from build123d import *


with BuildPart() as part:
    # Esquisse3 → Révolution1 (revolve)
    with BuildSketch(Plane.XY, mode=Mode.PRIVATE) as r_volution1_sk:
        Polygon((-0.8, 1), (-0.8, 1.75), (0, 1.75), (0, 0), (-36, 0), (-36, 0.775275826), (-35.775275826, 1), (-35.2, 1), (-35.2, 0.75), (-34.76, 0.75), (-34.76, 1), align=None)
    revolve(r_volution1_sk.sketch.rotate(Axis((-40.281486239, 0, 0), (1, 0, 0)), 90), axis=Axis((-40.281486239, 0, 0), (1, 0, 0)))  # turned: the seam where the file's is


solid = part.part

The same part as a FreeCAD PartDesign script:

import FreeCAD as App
import Part
import Sketcher
from FreeCAD import Vector
Q = App.Units.Quantity

doc = App.newDocument("Part")
params = doc.addObject("Spreadsheet::Sheet", "Params")
for row, (alias, value) in enumerate([
    ("sketch1_width", "36 mm"),
    ("sketch1_width2", "0.8 mm"),
    ("sketch1_width3", "33.96 mm"),
    ("sketch1_width4", "0.44 mm"),
    ("sketch1_height", "0.75 mm"),
    ("revolution_angle", "360 deg"),
], start=1):
    params.set(f"A{row}", alias)
    params.set(f"B{row}", "=" + value)
    params.setAlias(f"B{row}", alias)

body = doc.addObject("PartDesign::Body", "Body")

# Sketch on XY plane
sketch1 = body.newObject("Sketcher::SketchObject", "Sketch")
sketch1.AttachmentSupport = (doc.getObject("XY_Plane"), [""])
sketch1.MapMode = "FlatFace"
sketch1.addGeometry([
    Part.LineSegment(Vector(-0.8, 1.75, 0), Vector(-0.8, 1, 0)),  # 0
    Part.LineSegment(Vector(-0.8, 1, 0), Vector(-34.76, 1, 0)),  # 1
    Part.LineSegment(Vector(-34.76, 1, 0), Vector(-34.76, 0.75, 0)),  # 2
    Part.LineSegment(Vector(-34.76, 0.75, 0), Vector(-35.2, 0.75, 0)),  # 3
    Part.LineSegment(Vector(-35.2, 0.75, 0), Vector(-35.2, 1, 0)),  # 4
    Part.LineSegment(Vector(-35.2, 1, 0), Vector(-35.775276, 1, 0)),  # 5
    Part.LineSegment(Vector(-35.775276, 1, 0), Vector(-36, 0.775276, 0)),  # 6
    Part.LineSegment(Vector(-36, 0.775276, 0), Vector(-36, 0, 0)),  # 7
    Part.LineSegment(Vector(-36, 0, 0), Vector(0, 0, 0)),  # 8
    Part.LineSegment(Vector(0, 0, 0), Vector(0, 1.75, 0)),  # 9
    Part.LineSegment(Vector(0, 1.75, 0), Vector(-0.8, 1.75, 0)),  # 10
], False)
sketch1.addConstraint([
    Sketcher.Constraint("Coincident", 0, 2, 1, 1),
    Sketcher.Constraint("Coincident", 1, 2, 2, 1),
    Sketcher.Constraint("Coincident", 2, 2, 3, 1),
    Sketcher.Constraint("Coincident", 3, 2, 4, 1),
    Sketcher.Constraint("Coincident", 4, 2, 5, 1),
    Sketcher.Constraint("Coincident", 5, 2, 6, 1),
    Sketcher.Constraint("Coincident", 6, 2, 7, 1),
    Sketcher.Constraint("Coincident", 7, 2, 8, 1),
    Sketcher.Constraint("Coincident", 8, 2, 9, 1),
    Sketcher.Constraint("Coincident", 9, 2, 10, 1),
    Sketcher.Constraint("Coincident", 10, 2, 0, 1),
    Sketcher.Constraint("Vertical", 0),
    Sketcher.Constraint("Horizontal", 1),
    Sketcher.Constraint("Vertical", 2),
    Sketcher.Constraint("Horizontal", 3),
    Sketcher.Constraint("Vertical", 4),
    Sketcher.Constraint("Horizontal", 5),
    Sketcher.Constraint("Vertical", 7),
    Sketcher.Constraint("Horizontal", 8),
    Sketcher.Constraint("Vertical", 9),
    Sketcher.Constraint("Horizontal", 10),
    Sketcher.Constraint("Coincident", 8, 2, -1, 1),
    Sketcher.Constraint("Horizontal", 1, 2, 4, 2),
    Sketcher.Constraint("DistanceX", 8, 1, 8, 2, 36.0),
    Sketcher.Constraint("Angle", 6, Q("-135 deg")),
    Sketcher.Constraint("DistanceX", 10, 2, 10, 1, 0.8),
    Sketcher.Constraint("DistanceY", -1, 1, 0, 2, 1.0),
    Sketcher.Constraint("DistanceY", 2, 2, 9, 2, 1.0),
    Sketcher.Constraint("DistanceX", 1, 2, 1, 1, 33.96),
    Sketcher.Constraint("DistanceX", 3, 2, 3, 1, 0.44),
    Sketcher.Constraint("DistanceY", 0, 2, 0, 1, 0.75),
    Sketcher.Constraint("DistanceX", 5, 2, 5, 1, 0.575276),
])
sketch1.setExpression("Constraints[23]", "Params.sketch1_width")
sketch1.setExpression("Constraints[25]", "Params.sketch1_width2")
sketch1.setExpression("Constraints[28]", "Params.sketch1_width3")
sketch1.setExpression("Constraints[29]", "Params.sketch1_width4")
sketch1.setExpression("Constraints[30]", "Params.sketch1_height")
revolution = body.newObject("PartDesign::Revolution", "Revolution")
revolution.Profile = sketch1
revolution.ReferenceAxis = (sketch1, ["H_Axis"])
revolution.setExpression("Angle", "Params.revolution_angle")

doc.recompute()
